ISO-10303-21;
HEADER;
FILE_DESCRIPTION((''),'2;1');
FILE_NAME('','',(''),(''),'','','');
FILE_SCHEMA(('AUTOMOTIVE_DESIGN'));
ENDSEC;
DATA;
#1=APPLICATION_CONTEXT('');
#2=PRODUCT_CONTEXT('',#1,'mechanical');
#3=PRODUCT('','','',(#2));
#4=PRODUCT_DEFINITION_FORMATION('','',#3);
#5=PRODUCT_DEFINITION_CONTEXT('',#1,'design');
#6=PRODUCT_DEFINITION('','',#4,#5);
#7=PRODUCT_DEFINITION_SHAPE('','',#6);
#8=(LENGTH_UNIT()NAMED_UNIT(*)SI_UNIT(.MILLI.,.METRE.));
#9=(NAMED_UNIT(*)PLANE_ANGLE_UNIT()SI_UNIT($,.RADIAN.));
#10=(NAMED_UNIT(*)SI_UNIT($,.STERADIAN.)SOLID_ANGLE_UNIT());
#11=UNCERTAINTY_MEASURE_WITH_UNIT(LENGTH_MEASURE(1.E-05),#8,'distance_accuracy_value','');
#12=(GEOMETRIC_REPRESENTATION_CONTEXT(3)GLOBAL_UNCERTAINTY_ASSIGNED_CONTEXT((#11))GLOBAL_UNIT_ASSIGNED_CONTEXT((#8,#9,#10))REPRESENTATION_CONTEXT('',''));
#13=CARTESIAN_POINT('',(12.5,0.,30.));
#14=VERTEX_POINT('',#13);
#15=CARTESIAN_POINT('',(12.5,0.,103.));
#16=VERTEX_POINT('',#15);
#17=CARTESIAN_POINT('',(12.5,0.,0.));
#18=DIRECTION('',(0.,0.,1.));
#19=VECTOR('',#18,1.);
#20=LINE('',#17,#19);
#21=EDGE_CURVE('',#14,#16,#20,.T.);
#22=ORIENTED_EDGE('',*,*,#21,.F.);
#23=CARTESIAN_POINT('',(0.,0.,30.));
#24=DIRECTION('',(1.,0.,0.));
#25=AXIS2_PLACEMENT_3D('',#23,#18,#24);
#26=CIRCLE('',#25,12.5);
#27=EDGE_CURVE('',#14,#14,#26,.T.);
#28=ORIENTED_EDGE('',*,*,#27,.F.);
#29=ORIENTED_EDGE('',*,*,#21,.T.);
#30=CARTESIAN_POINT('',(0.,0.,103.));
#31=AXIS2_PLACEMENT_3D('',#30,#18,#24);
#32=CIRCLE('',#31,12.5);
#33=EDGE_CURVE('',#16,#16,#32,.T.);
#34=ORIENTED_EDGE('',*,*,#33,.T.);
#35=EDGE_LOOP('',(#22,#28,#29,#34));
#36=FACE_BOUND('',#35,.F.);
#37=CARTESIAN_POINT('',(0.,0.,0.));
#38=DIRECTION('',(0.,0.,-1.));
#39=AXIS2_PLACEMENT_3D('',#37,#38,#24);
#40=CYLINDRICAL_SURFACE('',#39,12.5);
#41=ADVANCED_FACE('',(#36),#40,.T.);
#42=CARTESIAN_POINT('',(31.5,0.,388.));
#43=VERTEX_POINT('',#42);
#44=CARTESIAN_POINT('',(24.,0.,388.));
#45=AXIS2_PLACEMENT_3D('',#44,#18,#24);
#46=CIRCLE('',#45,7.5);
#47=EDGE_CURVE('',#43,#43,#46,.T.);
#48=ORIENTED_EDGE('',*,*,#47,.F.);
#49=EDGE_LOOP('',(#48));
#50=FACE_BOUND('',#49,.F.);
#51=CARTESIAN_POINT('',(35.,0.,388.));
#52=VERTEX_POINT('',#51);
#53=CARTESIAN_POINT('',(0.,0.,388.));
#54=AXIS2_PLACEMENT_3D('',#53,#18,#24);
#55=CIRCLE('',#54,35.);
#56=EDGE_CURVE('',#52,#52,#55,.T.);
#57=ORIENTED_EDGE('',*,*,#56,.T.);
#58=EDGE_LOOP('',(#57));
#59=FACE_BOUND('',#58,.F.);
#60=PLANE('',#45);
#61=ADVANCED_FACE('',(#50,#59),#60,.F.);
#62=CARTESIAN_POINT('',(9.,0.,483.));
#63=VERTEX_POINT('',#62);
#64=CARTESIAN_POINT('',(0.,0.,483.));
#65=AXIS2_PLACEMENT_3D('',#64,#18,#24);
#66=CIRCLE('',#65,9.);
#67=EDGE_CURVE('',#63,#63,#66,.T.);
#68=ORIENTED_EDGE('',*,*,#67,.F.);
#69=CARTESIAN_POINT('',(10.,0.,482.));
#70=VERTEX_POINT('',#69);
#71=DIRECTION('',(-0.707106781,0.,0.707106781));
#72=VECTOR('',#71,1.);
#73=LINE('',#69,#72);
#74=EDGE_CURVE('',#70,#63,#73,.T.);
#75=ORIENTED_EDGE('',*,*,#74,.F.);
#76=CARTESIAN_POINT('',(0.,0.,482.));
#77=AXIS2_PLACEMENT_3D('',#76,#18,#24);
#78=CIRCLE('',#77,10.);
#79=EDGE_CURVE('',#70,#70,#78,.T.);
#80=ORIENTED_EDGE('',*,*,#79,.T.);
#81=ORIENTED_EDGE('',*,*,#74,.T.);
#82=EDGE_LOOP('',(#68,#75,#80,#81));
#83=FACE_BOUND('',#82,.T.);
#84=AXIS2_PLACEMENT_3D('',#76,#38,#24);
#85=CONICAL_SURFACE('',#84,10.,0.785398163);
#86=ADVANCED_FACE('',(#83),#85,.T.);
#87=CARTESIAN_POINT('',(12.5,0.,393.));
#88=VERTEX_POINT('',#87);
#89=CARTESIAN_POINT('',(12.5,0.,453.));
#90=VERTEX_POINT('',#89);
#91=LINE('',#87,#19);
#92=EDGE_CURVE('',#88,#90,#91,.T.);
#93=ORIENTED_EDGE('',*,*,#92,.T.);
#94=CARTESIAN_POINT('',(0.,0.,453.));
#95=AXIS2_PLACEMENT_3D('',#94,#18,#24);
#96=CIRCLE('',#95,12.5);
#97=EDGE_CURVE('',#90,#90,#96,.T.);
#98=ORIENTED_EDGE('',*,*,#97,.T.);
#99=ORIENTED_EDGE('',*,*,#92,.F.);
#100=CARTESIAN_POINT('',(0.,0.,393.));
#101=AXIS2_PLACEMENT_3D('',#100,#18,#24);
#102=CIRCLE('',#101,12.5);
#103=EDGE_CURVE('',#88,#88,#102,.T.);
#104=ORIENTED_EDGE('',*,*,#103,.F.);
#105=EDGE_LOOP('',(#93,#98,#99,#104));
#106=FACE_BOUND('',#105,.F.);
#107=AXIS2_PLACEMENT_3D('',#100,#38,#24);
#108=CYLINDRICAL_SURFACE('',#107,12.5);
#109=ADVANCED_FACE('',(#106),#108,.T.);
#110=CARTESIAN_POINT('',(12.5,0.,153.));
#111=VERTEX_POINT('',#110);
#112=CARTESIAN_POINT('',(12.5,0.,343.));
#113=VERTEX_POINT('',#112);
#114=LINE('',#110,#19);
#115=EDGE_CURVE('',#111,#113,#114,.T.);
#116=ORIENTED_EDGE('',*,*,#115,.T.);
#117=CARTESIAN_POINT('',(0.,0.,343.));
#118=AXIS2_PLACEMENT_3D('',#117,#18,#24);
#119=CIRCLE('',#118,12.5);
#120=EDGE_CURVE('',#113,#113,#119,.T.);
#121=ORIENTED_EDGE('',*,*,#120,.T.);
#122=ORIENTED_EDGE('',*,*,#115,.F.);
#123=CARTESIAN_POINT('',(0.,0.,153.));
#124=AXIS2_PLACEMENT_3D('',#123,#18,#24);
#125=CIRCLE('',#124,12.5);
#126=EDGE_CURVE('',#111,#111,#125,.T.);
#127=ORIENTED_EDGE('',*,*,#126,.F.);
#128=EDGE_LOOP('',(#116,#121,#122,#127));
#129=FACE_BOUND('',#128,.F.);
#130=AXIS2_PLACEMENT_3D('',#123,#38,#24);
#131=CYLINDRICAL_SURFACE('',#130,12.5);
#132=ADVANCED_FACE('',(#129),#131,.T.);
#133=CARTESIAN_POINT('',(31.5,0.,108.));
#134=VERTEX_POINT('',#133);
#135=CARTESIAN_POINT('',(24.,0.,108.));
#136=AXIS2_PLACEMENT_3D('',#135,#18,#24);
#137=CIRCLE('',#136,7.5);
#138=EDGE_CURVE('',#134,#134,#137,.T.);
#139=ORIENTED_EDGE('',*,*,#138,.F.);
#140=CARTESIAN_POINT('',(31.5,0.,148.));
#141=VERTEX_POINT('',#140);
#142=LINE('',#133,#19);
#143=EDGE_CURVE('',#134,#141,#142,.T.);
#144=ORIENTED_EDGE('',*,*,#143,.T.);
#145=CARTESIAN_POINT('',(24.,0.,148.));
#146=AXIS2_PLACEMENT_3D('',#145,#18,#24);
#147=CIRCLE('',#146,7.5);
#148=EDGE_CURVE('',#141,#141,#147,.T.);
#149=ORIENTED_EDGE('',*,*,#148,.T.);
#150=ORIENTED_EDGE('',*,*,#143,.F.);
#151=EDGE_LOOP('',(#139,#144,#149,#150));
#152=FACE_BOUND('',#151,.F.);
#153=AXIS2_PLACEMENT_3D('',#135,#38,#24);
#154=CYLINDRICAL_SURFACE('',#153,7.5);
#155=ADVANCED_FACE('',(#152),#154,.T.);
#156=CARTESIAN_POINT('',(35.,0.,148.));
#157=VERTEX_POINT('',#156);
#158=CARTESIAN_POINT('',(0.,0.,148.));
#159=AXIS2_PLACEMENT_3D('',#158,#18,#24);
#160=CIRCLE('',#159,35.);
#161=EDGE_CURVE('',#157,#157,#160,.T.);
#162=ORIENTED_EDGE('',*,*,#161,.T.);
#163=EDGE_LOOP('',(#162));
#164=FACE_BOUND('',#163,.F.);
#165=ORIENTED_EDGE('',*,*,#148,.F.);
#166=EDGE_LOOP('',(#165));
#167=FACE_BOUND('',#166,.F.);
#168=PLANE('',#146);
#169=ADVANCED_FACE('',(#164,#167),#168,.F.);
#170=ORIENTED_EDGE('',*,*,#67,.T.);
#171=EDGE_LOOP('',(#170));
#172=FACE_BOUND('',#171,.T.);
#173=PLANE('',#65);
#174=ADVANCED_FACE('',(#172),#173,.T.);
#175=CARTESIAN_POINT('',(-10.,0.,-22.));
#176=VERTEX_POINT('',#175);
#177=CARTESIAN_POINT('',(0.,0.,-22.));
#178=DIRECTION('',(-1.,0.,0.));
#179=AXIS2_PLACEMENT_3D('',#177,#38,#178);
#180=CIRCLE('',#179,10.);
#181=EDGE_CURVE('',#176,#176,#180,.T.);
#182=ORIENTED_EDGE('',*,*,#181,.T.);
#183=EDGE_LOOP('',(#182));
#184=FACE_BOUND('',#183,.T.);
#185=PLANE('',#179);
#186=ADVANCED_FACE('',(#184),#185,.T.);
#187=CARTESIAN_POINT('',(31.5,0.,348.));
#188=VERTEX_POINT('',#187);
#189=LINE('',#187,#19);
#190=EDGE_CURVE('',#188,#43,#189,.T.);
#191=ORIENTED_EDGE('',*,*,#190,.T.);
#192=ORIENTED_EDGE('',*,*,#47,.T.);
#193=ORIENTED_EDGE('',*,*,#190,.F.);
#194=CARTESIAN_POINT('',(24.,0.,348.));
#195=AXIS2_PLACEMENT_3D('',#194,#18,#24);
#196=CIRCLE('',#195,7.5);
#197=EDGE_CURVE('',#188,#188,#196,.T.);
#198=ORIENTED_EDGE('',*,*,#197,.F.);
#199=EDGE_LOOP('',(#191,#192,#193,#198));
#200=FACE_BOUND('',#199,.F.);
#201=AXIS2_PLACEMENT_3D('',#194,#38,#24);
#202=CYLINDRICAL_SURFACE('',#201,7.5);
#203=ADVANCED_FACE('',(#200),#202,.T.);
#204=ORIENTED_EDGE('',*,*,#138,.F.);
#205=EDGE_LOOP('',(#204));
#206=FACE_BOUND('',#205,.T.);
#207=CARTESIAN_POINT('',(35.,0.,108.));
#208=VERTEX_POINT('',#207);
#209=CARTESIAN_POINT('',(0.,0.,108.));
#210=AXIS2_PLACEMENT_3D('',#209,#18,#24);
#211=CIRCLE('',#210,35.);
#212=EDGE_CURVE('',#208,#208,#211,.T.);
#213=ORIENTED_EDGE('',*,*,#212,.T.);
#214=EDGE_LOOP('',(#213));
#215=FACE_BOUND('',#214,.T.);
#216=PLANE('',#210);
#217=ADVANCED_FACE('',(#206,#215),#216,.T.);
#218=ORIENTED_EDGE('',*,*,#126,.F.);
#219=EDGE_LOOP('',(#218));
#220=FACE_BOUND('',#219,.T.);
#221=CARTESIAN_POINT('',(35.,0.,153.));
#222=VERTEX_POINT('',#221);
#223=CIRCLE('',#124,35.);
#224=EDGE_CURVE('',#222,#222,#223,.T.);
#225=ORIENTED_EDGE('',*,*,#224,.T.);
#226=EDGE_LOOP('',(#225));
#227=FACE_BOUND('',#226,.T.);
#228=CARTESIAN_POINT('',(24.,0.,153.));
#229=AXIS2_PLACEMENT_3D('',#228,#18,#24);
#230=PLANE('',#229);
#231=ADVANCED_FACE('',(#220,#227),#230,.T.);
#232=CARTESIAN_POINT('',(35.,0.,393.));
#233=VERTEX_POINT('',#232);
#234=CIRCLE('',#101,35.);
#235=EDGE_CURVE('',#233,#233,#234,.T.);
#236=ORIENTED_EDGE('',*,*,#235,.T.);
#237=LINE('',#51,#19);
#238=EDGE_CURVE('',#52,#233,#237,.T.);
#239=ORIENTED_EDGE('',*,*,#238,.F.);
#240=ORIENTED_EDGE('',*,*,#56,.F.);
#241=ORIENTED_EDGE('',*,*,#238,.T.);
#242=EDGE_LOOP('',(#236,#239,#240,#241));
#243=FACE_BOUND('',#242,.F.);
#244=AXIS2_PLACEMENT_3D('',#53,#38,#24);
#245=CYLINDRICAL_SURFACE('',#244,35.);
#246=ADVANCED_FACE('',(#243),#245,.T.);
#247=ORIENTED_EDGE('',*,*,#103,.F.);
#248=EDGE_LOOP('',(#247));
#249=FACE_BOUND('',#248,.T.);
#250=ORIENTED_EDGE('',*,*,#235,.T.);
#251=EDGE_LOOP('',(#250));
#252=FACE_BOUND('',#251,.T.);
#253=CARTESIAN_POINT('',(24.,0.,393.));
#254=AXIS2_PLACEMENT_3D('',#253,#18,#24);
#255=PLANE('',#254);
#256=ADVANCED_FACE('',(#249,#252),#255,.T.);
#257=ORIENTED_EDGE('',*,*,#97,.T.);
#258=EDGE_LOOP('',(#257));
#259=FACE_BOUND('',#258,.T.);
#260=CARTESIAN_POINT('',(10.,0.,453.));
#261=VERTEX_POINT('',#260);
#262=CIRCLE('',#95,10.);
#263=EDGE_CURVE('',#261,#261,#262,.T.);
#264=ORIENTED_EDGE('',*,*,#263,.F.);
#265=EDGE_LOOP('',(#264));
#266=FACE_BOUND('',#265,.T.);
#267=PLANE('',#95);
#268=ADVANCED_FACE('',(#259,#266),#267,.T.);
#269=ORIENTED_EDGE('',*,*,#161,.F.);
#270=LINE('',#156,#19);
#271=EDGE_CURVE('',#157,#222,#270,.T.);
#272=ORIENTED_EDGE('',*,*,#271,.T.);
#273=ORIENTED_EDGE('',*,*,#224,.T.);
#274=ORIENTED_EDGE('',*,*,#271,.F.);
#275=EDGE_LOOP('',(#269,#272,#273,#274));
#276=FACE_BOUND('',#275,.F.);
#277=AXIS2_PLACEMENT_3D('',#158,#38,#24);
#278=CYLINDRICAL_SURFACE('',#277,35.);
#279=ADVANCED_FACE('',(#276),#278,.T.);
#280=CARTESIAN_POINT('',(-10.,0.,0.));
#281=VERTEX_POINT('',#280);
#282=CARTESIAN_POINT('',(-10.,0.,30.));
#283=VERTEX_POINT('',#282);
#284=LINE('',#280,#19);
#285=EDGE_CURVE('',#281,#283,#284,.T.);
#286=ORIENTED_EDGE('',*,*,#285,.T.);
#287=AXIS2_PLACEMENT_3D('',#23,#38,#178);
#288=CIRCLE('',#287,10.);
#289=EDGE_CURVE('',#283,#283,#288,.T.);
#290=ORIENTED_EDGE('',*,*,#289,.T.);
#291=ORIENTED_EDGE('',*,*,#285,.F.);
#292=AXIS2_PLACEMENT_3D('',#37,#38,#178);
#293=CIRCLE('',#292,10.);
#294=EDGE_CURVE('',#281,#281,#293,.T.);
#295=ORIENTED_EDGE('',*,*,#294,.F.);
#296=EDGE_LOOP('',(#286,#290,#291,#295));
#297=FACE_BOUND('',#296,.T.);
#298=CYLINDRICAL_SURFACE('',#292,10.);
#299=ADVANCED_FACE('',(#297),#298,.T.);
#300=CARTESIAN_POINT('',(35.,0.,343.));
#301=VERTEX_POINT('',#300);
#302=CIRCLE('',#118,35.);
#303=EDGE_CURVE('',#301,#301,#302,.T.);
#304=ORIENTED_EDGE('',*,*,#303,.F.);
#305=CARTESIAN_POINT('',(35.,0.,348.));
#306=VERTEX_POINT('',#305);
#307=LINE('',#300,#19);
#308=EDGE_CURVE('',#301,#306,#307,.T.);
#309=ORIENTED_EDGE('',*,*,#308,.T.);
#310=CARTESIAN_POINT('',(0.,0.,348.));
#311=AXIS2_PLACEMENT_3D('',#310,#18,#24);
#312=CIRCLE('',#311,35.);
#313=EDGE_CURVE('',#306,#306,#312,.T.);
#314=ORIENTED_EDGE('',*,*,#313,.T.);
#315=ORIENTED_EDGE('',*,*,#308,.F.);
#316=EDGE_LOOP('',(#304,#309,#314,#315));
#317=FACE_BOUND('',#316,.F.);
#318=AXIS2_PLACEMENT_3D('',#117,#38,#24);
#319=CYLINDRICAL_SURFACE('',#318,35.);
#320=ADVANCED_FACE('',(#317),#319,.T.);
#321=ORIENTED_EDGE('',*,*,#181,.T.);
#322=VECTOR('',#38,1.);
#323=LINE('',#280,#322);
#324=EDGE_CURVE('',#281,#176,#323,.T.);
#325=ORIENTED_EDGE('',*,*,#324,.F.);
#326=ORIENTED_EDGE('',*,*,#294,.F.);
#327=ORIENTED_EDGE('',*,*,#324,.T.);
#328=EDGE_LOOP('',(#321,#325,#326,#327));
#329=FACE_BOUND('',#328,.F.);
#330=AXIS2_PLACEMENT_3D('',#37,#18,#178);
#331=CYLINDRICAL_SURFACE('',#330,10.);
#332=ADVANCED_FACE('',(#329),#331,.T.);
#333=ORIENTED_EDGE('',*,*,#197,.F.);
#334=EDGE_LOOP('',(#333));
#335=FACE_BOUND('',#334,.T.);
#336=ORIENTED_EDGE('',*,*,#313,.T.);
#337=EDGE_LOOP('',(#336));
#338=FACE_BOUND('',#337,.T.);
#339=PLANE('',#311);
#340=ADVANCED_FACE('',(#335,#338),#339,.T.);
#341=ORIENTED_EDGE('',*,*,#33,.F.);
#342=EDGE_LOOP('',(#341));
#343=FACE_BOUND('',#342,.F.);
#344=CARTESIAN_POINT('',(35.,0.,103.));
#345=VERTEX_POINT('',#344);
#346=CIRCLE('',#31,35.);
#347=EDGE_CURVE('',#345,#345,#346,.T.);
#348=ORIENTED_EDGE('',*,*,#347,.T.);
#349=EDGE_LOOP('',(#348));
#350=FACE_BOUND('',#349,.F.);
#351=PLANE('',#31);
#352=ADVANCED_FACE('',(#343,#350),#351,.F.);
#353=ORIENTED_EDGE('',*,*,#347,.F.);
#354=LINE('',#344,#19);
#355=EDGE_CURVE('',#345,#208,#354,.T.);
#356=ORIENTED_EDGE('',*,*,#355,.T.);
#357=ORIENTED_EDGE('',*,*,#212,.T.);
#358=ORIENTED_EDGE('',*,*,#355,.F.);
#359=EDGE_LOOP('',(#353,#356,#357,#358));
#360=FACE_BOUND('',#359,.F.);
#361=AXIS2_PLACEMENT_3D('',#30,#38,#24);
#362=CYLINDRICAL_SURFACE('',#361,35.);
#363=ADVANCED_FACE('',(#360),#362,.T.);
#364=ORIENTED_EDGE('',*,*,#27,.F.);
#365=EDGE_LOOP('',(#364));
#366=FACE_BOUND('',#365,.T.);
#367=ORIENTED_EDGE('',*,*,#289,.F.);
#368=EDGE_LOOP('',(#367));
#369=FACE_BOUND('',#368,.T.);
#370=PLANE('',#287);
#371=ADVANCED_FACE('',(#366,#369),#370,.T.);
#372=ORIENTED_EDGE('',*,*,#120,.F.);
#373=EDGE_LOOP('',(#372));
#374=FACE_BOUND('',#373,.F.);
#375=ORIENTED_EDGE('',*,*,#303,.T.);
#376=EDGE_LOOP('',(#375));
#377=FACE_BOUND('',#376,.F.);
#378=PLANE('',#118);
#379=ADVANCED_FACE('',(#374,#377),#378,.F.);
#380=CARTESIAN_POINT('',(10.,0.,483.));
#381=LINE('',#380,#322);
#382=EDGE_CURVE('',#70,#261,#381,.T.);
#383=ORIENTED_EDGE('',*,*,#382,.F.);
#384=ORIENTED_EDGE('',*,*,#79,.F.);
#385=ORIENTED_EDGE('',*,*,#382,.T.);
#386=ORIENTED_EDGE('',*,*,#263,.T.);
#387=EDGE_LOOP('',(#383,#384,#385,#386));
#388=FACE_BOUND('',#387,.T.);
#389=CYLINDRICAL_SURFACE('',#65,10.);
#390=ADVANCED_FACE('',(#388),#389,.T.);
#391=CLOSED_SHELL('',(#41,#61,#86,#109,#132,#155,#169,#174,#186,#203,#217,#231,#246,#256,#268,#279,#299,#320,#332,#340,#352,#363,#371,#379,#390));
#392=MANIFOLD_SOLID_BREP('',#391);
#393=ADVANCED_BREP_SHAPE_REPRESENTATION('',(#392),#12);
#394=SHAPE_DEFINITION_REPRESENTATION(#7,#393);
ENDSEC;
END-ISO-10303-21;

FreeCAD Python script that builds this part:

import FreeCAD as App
import Part
import Sketcher
from FreeCAD import Vector
Q = App.Units.Quantity


def edges_at(feature, points):
    """Names of the edges that pass closest to the given points."""
    edges = feature.Shape.Edges
    near = lambda p: min(range(len(edges)), key=lambda i: edges[i].distToShape(Part.Vertex(*p))[0])
    return sorted({f"Edge{near(p) + 1}" for p in points})

doc = App.newDocument("Part")
body = doc.addObject("PartDesign::Body", "Body")

# Sketch on XY plane
sketch1 = body.newObject("Sketcher::SketchObject", "Sketch")
sketch1.AttachmentSupport = (doc.getObject("XY_Plane"), [""])
sketch1.MapMode = "FlatFace"
sketch1.addGeometry(Part.Circle(Vector(0, 0, 0), Vector(0, 0, 1), 12), False)
sketch1.addConstraint([
    Sketcher.Constraint("Coincident", 0, 3, -1, 1),
    Sketcher.Constraint("Diameter", 0, Q("25 mm")),
])
pad1 = body.newObject("PartDesign::Pad", "Pad")
pad1.Profile = sketch1
pad1.Length = 103

# Sketch on XY plane
sketch2 = body.newObject("Sketcher::SketchObject", "Sketch001")
sketch2.AttachmentSupport = (doc.getObject("XY_Plane"), [""])
sketch2.MapMode = "FlatFace"
sketch2.AttachmentOffset = App.Placement(Vector(0, 0, 103), App.Rotation())
sketch2.addGeometry(Part.Circle(Vector(0, 0, 0), Vector(0, 0, 1), 35), False)
sketch2.addConstraint([
    Sketcher.Constraint("Coincident", 0, 3, -1, 1),
    Sketcher.Constraint("Diameter", 0, Q("70 mm")),
])
pad2 = body.newObject("PartDesign::Pad", "Pad001")
pad2.Profile = sketch2
pad2.Length = 5

# Sketch on XY plane
sketch3 = body.newObject("Sketcher::SketchObject", "Sketch002")
sketch3.AttachmentSupport = (doc.getObject("XY_Plane"), [""])
sketch3.MapMode = "FlatFace"
sketch3.AttachmentOffset = App.Placement(Vector(0, 0, 108), App.Rotation())
sketch3.addGeometry(Part.Circle(Vector(24, 0, 0), Vector(0, 0, 1), 8), False)
sketch3.addConstraint([
    Sketcher.Constraint("PointOnObject", 0, 3, -1),
    Sketcher.Constraint("Diameter", 0, Q("15 mm")),
    Sketcher.Constraint("DistanceX", -1, 1, 0, 3, Q("24 mm")),
])
pad3 = body.newObject("PartDesign::Pad", "Pad002")
pad3.Profile = sketch3
pad3.Length = 40

# Sketch on XY plane
sketch4 = body.newObject("Sketcher::SketchObject", "Sketch003")
sketch4.AttachmentSupport = (doc.getObject("XY_Plane"), [""])
sketch4.MapMode = "FlatFace"
sketch4.AttachmentOffset = App.Placement(Vector(0, 0, 148), App.Rotation())
sketch4.addGeometry(Part.Circle(Vector(0, 0, 0), Vector(0, 0, 1), 35), False)
sketch4.addConstraint([
    Sketcher.Constraint("Coincident", 0, 3, -1, 1),
    Sketcher.Constraint("Diameter", 0, Q("70 mm")),
])
pad4 = body.newObject("PartDesign::Pad", "Pad003")
pad4.Profile = sketch4
pad4.Length = 5

# Sketch on XY plane
sketch5 = body.newObject("Sketcher::SketchObject", "Sketch004")
sketch5.AttachmentSupport = (doc.getObject("XY_Plane"), [""])
sketch5.MapMode = "FlatFace"
sketch5.AttachmentOffset = App.Placement(Vector(0, 0, 153), App.Rotation())
sketch5.addGeometry(Part.Circle(Vector(0, 0, 0), Vector(0, 0, 1), 12), False)
sketch5.addConstraint([
    Sketcher.Constraint("Coincident", 0, 3, -1, 1),
    Sketcher.Constraint("Diameter", 0, Q("25 mm")),
])
pad5 = body.newObject("PartDesign::Pad", "Pad004")
pad5.Profile = sketch5
pad5.Length = 190

# Sketch on XY plane
sketch6 = body.newObject("Sketcher::SketchObject", "Sketch005")
sketch6.AttachmentSupport = (doc.getObject("XY_Plane"), [""])
sketch6.MapMode = "FlatFace"
sketch6.AttachmentOffset = App.Placement(Vector(0, 0, 343), App.Rotation())
sketch6.addGeometry(Part.Circle(Vector(0, 0, 0), Vector(0, 0, 1), 35), False)
sketch6.addConstraint([
    Sketcher.Constraint("Coincident", 0, 3, -1, 1),
    Sketcher.Constraint("Diameter", 0, Q("70 mm")),
])
pad6 = body.newObject("PartDesign::Pad", "Pad005")
pad6.Profile = sketch6
pad6.Length = 5

# Sketch on XY plane
sketch7 = body.newObject("Sketcher::SketchObject", "Sketch006")
sketch7.AttachmentSupport = (doc.getObject("XY_Plane"), [""])
sketch7.MapMode = "FlatFace"
sketch7.AttachmentOffset = App.Placement(Vector(0, 0, 348), App.Rotation())
sketch7.addGeometry(Part.Circle(Vector(24, 0, 0), Vector(0, 0, 1), 8), False)
sketch7.addConstraint([
    Sketcher.Constraint("PointOnObject", 0, 3, -1),
    Sketcher.Constraint("Diameter", 0, Q("15 mm")),
    Sketcher.Constraint("DistanceX", -1, 1, 0, 3, Q("24 mm")),
])
pad7 = body.newObject("PartDesign::Pad", "Pad006")
pad7.Profile = sketch7
pad7.Length = 40

# Sketch on XY plane
sketch8 = body.newObject("Sketcher::SketchObject", "Sketch007")
sketch8.AttachmentSupport = (doc.getObject("XY_Plane"), [""])
sketch8.MapMode = "FlatFace"
sketch8.AttachmentOffset = App.Placement(Vector(0, 0, 388), App.Rotation())
sketch8.addGeometry(Part.Circle(Vector(0, 0, 0), Vector(0, 0, 1), 35), False)
sketch8.addConstraint([
    Sketcher.Constraint("Coincident", 0, 3, -1, 1),
    Sketcher.Constraint("Diameter", 0, Q("70 mm")),
])
pad8 = body.newObject("PartDesign::Pad", "Pad007")
pad8.Profile = sketch8
pad8.Length = 5

# Sketch on XY plane
sketch9 = body.newObject("Sketcher::SketchObject", "Sketch008")
sketch9.AttachmentSupport = (doc.getObject("XY_Plane"), [""])
sketch9.MapMode = "FlatFace"
sketch9.AttachmentOffset = App.Placement(Vector(0, 0, 393), App.Rotation())
sketch9.addGeometry(Part.Circle(Vector(0, 0, 0), Vector(0, 0, 1), 12), False)
sketch9.addConstraint([
    Sketcher.Constraint("Coincident", 0, 3, -1, 1),
    Sketcher.Constraint("Diameter", 0, Q("25 mm")),
])
pad9 = body.newObject("PartDesign::Pad", "Pad008")
pad9.Profile = sketch9
pad9.Length = 90

# Sketch on XY plane
sketch10 = body.newObject("Sketcher::SketchObject", "Sketch009")
sketch10.AttachmentSupport = (doc.getObject("XY_Plane"), [""])
sketch10.MapMode = "FlatFace"
sketch10.AttachmentOffset = App.Placement(Vector(0, 0, 483), App.Rotation())
sketch10.addGeometry([
    Part.Circle(Vector(0, 0, 0), Vector(0, 0, 1), 12),
    Part.Circle(Vector(0, 0, 0), Vector(0, 0, 1), 10),
], False)
sketch10.addConstraint([
    Sketcher.Constraint("Coincident", 0, 3, -1, 1),
    Sketcher.Constraint("Coincident", 1, 3, -1, 1),
    Sketcher.Constraint("Diameter", 0, Q("25 mm")),
    Sketcher.Constraint("Diameter", 1, Q("20 mm")),
])
pocket1 = body.newObject("PartDesign::Pocket", "Pocket")
pocket1.Profile = sketch10
pocket1.Length = 30
doc.recompute()

chamfer = body.newObject("PartDesign::Chamfer", "Chamfer")
chamfer.Base = (pocket1, edges_at(pocket1, [(-10, 0, 483)]))
chamfer.Size = 1

# Sketch on XY plane
sketch11 = body.newObject("Sketcher::SketchObject", "Sketch010")
sketch11.AttachmentSupport = (doc.getObject("XY_Plane"), [""])
sketch11.MapMode = "FlatFace"
sketch11.addGeometry([
    Part.Circle(Vector(0, 0, 0), Vector(0, 0, 1), 12),
    Part.Circle(Vector(0, 0, 0), Vector(0, 0, 1), 10),
], False)
sketch11.addConstraint([
    Sketcher.Constraint("Coincident", 0, 3, -1, 1),
    Sketcher.Constraint("Coincident", 1, 3, -1, 1),
    Sketcher.Constraint("Diameter", 0, Q("25 mm")),
    Sketcher.Constraint("Diameter", 1, Q("20 mm")),
])
pocket2 = body.newObject("PartDesign::Pocket", "Pocket001")
pocket2.Profile = sketch11
pocket2.Length = 30
pocket2.Reversed = True

# Sketch on XY plane
sketch12 = body.newObject("Sketcher::SketchObject", "Sketch011")
sketch12.AttachmentSupport = (doc.getObject("XY_Plane"), [""])
sketch12.MapMode = "FlatFace"
sketch12.addGeometry(Part.Circle(Vector(0, 0, 0), Vector(0, 0, 1), 10), False)
sketch12.addConstraint([
    Sketcher.Constraint("Coincident", 0, 3, -1, 1),
    Sketcher.Constraint("Diameter", 0, Q("20 mm")),
])
pad10 = body.newObject("PartDesign::Pad", "Pad009")
pad10.Profile = sketch12
pad10.Length = 22
pad10.Reversed = True

doc.recompute()
